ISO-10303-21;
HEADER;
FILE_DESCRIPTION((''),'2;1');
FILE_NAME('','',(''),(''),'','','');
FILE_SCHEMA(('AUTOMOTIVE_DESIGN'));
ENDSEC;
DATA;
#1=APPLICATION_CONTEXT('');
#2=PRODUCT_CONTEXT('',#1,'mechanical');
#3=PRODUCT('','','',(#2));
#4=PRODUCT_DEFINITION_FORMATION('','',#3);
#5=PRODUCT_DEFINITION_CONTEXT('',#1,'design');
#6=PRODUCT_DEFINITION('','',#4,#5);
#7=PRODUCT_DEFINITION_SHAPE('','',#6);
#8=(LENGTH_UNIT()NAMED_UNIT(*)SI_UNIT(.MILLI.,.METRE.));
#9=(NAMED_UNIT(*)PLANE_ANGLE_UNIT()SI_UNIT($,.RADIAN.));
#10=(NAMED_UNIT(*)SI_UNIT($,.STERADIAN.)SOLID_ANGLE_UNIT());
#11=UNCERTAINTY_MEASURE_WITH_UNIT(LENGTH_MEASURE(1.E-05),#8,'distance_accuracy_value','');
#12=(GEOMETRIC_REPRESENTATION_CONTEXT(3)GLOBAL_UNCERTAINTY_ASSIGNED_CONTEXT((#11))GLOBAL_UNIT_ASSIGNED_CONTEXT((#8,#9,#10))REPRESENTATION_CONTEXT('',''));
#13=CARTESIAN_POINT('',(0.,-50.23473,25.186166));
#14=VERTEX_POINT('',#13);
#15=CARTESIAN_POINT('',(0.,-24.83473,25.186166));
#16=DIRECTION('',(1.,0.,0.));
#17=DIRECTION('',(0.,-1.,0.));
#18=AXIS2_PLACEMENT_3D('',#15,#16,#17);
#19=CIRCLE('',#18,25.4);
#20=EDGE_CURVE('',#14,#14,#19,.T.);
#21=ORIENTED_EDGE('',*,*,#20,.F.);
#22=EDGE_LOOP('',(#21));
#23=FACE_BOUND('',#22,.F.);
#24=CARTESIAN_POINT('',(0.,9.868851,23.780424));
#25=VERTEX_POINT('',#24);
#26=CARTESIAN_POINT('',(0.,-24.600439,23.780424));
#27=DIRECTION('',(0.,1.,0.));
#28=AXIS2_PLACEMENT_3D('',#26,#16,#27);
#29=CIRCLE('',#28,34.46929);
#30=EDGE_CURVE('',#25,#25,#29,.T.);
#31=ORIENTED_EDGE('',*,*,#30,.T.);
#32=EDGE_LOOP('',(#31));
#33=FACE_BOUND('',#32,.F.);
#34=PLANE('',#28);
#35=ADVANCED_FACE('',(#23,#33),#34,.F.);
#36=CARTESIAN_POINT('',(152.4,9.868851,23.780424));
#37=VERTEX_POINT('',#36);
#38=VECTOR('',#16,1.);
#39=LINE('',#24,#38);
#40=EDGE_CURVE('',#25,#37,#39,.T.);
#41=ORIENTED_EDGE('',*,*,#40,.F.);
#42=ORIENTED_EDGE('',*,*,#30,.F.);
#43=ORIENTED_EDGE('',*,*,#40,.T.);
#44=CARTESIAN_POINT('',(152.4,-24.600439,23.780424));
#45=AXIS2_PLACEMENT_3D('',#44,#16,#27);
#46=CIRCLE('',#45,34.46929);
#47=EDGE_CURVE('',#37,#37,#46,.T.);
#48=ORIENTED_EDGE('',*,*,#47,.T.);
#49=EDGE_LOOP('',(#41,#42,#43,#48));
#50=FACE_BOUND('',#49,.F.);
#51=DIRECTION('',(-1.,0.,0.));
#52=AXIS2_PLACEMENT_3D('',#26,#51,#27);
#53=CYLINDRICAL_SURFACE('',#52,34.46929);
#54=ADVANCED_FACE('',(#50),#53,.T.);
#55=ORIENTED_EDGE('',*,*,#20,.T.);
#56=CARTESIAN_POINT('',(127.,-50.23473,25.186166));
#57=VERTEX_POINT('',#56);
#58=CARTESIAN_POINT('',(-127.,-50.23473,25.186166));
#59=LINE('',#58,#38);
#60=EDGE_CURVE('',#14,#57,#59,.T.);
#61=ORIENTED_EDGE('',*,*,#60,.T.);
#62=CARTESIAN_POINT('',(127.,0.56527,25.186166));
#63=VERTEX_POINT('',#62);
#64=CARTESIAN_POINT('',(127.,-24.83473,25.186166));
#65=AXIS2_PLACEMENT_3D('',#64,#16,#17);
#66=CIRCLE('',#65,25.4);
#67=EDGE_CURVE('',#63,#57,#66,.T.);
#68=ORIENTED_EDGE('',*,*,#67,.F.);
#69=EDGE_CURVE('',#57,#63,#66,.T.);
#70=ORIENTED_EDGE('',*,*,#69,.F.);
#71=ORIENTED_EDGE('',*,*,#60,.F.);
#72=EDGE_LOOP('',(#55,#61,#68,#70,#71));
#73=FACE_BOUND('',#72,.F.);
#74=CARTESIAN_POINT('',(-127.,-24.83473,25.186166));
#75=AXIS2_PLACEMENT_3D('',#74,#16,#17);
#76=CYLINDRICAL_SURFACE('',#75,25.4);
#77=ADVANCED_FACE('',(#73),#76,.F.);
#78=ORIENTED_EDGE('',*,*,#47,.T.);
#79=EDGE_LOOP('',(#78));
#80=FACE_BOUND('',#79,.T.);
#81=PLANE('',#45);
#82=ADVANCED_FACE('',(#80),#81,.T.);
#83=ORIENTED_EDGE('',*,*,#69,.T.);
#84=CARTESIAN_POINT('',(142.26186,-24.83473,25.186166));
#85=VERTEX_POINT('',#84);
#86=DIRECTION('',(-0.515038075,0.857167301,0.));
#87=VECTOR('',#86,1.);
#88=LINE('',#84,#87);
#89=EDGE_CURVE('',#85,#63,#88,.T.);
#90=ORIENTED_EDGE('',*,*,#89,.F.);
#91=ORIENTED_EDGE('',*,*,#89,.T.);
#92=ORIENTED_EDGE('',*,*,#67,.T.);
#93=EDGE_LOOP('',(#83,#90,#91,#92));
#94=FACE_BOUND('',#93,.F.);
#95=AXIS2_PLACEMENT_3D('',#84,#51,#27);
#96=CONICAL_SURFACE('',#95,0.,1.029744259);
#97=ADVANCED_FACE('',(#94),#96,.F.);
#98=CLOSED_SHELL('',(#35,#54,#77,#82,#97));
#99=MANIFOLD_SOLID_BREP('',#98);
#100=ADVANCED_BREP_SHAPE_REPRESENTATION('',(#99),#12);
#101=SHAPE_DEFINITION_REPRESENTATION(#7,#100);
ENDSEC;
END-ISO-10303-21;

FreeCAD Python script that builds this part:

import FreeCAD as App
import Part
import Sketcher
from FreeCAD import Vector
Q = App.Units.Quantity

doc = App.newDocument("Part")
body = doc.addObject("PartDesign::Body", "Body")

# Sketch on YZ plane
sketch1 = body.newObject("Sketcher::SketchObject", "Sketch")
sketch1.AttachmentSupport = (doc.getObject("YZ_Plane"), [""])
sketch1.MapMode = "FlatFace"
sketch1.addGeometry(Part.Circle(Vector(-25, 24, 0), Vector(0, 0, 1), 34), False)
sketch1.addConstraint([
    Sketcher.Constraint("Diameter", 0, 68.93858),
    Sketcher.Constraint("DistanceX", 0, 3, -1, 1, 24.600439),
    Sketcher.Constraint("DistanceY", -1, 1, 0, 3, 23.780424),
])
pad1 = body.newObject("PartDesign::Pad", "Pad")
pad1.Profile = sketch1
pad1.Length = Q("6 in")

# Sketch on YZ plane
sketch2 = body.newObject("Sketcher::SketchObject", "Sketch001")
sketch2.AttachmentSupport = (doc.getObject("YZ_Plane"), [""])
sketch2.MapMode = "FlatFace"
sketch2.addGeometry(Part.Circle(Vector(-25, 25, 0), Vector(0, 0, 1), 25), False)
sketch2.addConstraint([
    Sketcher.Constraint("Diameter", 0, Q("2 in")),
    Sketcher.Constraint("DistanceX", 0, 3, -1, 1, 24.83473),
    Sketcher.Constraint("DistanceY", -1, 1, 0, 3, 25.186166),
])
doc.recompute()
hole = body.newObject("PartDesign::Hole", "Hole")
hole.Profile = sketch2
hole.ThreadType = "None"
hole.Diameter = Q("2 in")
hole.DepthType = "Dimension"
hole.Depth = Q("5 in")
hole.DrillPoint = "Angled"
hole.DrillPointAngle = 118
hole.Reversed = True

doc.recompute()
